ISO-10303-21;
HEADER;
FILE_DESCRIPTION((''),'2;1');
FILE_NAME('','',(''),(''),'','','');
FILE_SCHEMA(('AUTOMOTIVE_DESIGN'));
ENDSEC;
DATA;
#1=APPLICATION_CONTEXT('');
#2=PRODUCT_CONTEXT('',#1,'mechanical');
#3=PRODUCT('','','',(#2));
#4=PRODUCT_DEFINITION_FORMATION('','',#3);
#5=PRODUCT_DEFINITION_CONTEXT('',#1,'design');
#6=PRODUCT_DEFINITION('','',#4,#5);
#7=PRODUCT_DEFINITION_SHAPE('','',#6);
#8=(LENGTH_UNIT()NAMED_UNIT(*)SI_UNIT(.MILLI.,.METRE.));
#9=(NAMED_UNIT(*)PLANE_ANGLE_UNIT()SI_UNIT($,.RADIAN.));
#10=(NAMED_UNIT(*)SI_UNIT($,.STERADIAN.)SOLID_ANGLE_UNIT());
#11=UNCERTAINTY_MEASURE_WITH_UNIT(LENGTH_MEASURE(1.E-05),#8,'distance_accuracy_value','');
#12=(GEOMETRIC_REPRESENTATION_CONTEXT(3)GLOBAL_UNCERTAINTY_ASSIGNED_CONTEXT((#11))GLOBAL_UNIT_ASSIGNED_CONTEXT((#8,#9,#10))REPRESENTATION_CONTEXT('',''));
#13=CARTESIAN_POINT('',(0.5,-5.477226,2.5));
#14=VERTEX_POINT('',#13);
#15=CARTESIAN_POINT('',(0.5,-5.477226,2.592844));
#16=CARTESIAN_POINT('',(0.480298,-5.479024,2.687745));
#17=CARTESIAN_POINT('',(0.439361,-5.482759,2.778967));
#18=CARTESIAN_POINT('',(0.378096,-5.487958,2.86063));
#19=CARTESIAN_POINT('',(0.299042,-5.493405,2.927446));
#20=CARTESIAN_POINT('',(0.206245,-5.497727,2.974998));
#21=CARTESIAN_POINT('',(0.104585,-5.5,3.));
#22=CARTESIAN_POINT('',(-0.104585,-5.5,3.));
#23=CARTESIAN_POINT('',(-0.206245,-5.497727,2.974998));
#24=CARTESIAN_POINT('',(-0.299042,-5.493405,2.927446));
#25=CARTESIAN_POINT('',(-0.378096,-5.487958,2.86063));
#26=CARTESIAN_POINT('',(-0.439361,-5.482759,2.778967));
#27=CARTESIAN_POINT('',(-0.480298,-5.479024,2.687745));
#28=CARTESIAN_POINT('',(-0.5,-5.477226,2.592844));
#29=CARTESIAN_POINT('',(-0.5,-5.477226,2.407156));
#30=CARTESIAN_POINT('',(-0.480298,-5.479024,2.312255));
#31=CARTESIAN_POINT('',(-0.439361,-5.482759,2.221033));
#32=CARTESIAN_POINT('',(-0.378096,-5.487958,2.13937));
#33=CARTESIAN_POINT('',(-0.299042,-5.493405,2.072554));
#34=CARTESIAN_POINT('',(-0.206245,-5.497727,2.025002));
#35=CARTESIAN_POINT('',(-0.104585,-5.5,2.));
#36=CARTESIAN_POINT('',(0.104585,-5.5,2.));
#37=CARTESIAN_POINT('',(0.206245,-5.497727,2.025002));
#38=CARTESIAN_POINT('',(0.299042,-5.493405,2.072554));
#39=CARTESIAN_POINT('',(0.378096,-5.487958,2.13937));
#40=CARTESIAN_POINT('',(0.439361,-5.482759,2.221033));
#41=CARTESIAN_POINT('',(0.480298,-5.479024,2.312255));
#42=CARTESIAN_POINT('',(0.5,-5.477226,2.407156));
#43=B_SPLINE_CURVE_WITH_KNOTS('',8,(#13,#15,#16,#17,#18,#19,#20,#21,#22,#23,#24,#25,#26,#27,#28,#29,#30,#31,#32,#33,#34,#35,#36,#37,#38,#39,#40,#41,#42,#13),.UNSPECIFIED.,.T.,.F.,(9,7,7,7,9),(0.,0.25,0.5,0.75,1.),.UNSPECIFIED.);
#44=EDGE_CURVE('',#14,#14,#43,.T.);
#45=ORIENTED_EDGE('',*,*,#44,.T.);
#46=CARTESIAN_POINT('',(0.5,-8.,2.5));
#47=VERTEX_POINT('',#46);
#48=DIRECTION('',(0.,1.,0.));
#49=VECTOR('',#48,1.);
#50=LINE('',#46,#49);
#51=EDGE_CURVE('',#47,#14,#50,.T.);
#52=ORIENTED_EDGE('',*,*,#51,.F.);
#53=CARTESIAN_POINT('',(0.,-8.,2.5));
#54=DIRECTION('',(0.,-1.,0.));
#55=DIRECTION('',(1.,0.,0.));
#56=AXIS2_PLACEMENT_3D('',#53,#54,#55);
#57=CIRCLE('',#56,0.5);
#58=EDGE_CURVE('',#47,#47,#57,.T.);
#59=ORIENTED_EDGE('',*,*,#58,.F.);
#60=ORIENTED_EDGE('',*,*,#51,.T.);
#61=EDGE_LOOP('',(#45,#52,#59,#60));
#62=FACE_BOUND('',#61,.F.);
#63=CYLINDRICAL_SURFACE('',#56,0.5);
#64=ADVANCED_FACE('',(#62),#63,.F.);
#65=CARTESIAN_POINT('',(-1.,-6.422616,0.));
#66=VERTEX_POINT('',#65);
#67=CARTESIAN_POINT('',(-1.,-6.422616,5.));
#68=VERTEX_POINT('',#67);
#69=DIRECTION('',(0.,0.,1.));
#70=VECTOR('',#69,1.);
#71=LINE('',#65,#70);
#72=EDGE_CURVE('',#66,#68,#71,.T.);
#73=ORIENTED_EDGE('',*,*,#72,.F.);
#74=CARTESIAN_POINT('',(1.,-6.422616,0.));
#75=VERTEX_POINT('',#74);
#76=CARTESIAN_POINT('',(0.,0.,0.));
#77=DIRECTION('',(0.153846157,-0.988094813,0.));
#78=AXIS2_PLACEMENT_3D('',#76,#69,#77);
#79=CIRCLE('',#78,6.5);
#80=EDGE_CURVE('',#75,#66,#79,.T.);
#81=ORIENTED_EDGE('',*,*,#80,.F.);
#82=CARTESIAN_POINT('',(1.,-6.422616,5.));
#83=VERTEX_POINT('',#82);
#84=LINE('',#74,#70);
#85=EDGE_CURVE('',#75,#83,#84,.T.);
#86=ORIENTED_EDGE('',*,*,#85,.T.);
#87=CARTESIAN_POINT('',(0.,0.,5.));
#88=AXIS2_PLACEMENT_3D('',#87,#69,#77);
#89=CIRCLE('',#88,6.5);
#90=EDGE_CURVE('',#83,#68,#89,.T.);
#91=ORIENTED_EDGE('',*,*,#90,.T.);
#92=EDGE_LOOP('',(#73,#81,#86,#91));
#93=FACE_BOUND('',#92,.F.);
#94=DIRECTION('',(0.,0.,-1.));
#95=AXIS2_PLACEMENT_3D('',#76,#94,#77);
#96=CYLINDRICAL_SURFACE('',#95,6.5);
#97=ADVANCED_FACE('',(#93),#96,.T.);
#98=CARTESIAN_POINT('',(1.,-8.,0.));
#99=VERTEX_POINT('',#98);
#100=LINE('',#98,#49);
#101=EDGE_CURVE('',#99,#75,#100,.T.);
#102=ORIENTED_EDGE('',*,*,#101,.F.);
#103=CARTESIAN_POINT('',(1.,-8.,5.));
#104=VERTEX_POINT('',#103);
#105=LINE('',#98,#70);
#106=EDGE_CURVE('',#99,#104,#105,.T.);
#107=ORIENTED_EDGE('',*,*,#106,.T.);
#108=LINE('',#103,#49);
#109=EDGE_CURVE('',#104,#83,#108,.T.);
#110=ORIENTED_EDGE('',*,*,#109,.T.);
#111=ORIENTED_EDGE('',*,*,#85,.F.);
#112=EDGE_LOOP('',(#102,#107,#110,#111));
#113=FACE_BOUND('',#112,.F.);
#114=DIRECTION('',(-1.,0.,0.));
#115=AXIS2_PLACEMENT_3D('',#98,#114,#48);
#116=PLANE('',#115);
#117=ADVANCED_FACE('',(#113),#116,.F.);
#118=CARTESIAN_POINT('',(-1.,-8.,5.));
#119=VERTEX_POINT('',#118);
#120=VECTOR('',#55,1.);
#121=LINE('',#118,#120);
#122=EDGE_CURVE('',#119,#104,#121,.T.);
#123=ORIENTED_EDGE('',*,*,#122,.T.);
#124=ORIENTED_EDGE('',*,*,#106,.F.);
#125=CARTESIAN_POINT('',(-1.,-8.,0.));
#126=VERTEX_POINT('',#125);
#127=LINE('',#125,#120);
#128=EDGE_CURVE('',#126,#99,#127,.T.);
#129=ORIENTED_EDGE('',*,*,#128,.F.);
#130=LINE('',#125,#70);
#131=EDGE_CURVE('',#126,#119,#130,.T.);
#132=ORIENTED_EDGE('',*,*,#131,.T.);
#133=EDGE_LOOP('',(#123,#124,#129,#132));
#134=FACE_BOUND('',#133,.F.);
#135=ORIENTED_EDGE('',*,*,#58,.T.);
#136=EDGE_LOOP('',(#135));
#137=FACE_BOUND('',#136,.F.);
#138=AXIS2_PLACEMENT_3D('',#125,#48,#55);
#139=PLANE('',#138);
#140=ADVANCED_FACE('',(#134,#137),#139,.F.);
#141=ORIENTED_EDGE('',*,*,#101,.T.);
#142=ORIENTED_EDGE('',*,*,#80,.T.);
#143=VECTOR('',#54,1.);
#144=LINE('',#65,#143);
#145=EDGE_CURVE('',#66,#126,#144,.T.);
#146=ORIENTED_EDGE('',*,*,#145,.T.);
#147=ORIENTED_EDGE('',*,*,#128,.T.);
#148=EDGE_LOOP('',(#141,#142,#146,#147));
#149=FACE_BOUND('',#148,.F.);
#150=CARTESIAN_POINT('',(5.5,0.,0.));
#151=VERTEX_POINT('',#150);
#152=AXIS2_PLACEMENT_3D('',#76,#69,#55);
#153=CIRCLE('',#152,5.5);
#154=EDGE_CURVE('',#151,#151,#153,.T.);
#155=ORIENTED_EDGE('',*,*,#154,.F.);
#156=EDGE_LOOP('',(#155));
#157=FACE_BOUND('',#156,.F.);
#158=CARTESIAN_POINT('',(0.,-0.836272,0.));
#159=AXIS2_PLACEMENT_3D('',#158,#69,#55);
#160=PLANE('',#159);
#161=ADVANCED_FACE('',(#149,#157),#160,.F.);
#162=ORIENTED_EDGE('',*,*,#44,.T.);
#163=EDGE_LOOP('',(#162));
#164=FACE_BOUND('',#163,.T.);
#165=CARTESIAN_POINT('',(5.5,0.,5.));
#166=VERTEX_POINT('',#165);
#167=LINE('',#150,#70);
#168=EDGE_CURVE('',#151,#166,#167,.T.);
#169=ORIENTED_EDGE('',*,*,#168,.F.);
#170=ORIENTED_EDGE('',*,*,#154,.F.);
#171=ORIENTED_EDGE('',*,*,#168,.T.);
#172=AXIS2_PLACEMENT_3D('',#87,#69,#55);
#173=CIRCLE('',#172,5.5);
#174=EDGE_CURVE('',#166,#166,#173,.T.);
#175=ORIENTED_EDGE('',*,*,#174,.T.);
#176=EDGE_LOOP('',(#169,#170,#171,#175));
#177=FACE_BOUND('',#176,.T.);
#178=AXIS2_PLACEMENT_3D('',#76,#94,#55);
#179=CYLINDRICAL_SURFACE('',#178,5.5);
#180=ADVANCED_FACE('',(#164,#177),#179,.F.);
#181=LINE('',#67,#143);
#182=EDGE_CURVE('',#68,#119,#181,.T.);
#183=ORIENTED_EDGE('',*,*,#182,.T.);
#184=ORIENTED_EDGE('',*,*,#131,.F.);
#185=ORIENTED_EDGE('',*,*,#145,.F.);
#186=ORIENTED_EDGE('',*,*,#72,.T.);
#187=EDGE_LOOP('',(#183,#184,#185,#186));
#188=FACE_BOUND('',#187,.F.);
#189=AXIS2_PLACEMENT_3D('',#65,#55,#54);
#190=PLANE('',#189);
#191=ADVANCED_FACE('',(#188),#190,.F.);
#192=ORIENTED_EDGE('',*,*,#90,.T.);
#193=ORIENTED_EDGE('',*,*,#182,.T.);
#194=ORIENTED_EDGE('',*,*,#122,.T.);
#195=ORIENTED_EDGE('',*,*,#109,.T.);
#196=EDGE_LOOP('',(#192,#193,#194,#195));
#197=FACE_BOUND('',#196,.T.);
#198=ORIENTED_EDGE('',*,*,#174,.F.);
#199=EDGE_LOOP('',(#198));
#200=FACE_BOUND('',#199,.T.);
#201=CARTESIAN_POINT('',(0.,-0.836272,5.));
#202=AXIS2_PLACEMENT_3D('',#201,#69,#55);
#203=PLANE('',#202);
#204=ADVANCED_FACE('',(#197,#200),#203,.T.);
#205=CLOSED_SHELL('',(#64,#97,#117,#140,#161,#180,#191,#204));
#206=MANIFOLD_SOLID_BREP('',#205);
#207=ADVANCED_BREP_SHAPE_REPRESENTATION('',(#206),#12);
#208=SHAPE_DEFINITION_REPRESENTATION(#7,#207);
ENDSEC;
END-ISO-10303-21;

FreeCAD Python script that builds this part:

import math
import FreeCAD as App
import Part
import Sketcher
from FreeCAD import Vector
Q = App.Units.Quantity

doc = App.newDocument("Part")
body = doc.addObject("PartDesign::Body", "Body")

# Sketch on XY plane
sketch1 = body.newObject("Sketcher::SketchObject", "Sketch")
sketch1.AttachmentSupport = (doc.getObject("XY_Plane"), [""])
sketch1.MapMode = "FlatFace"
sketch1.addGeometry([
    Part.LineSegment(Vector(1, -8, 0), Vector(1, -6.4, 0)),  # 0
    Part.ArcOfCircle(Part.Circle(Vector(0, 0, 0), Vector(0, 0, 1), 6.5), math.radians(-81), math.radians(261)),  # 1
    Part.LineSegment(Vector(-1, -6.4, 0), Vector(-1, -8, 0)),  # 2
    Part.LineSegment(Vector(-1, -8, 0), Vector(1, -8, 0)),  # 3
    Part.Circle(Vector(0, 0, 0), Vector(0, 0, 1), 5.5),  # 4
], False)
sketch1.addConstraint([
    Sketcher.Constraint("Coincident", 0, 2, 1, 1),
    Sketcher.Constraint("Coincident", 1, 2, 2, 1),
    Sketcher.Constraint("Coincident", 2, 2, 3, 1),
    Sketcher.Constraint("Coincident", 3, 2, 0, 1),
    Sketcher.Constraint("Vertical", 0),
    Sketcher.Constraint("Vertical", 2),
    Sketcher.Constraint("Horizontal", 3),
    Sketcher.Constraint("Coincident", 1, 3, -1, 1),
    Sketcher.Constraint("Coincident", 4, 3, -1, 1),
    Sketcher.Constraint("Horizontal", 0, 2, 1, 2),
    Sketcher.Constraint("Diameter", 4, Q("11 mm")),
    Sketcher.Constraint("Radius", 1, Q("6.5 mm")),
    Sketcher.Constraint("DistanceX", 3, 1, 3, 2, Q("2 mm")),
    Sketcher.Constraint("DistanceY", 2, 2, -1, 1, Q("8 mm")),
])
pad1 = body.newObject("PartDesign::Pad", "Pad")
pad1.Profile = sketch1
pad1.Length = 5

# Sketch on XZ plane
sketch2 = body.newObject("Sketcher::SketchObject", "Sketch001")
sketch2.AttachmentSupport = (doc.getObject("XZ_Plane"), [""])
sketch2.MapMode = "FlatFace"
sketch2.AttachmentOffset = App.Placement(Vector(0, 0, 8), App.Rotation())
sketch2.addGeometry(Part.Circle(Vector(0, 2.5, 0), Vector(0, 0, 1), 0.5), False)
sketch2.addConstraint([
    Sketcher.Constraint("PointOnObject", 0, 3, -2),
    Sketcher.Constraint("Diameter", 0, Q("1 mm")),
    Sketcher.Constraint("DistanceY", -1, 1, 0, 3, Q("2.5 mm")),
])
pocket1 = body.newObject("PartDesign::Pocket", "Pocket")
pocket1.Profile = sketch2
pocket1.Length = 5

doc.recompute()
